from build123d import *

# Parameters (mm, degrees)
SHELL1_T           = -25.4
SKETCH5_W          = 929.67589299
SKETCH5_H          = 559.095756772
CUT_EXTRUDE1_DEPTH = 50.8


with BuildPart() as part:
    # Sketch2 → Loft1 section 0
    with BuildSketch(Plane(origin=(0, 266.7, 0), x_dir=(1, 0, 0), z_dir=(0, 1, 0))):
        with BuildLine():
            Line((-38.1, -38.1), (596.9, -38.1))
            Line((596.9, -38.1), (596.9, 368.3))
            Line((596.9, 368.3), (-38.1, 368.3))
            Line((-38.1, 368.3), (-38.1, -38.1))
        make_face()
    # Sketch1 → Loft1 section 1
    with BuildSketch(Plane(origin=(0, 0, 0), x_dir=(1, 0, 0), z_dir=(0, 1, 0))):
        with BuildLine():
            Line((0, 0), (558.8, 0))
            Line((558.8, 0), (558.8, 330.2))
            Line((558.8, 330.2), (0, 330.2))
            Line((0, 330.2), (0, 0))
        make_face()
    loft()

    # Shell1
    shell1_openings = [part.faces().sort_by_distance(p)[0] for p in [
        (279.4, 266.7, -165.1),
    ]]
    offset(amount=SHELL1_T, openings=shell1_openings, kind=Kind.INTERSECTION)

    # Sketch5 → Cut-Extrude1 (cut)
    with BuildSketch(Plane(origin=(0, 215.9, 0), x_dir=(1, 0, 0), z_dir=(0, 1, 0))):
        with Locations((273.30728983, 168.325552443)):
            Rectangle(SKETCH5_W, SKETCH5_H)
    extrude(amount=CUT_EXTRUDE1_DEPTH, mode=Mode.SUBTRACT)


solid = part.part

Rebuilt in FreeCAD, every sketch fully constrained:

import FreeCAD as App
import Part
import Sketcher
Q = App.Units.Quantity


def faces_at(feature, points):
    """Names of the faces that lie closest to the given points."""
    faces = feature.Shape.Faces
    near = lambda p: min(range(len(faces)), key=lambda i: faces[i].distToShape(Part.Vertex(*p))[0])
    return sorted({f"Face{near(p) + 1}" for p in points})

doc = App.newDocument("Part")
body = doc.addObject("PartDesign::Body", "Body")

sketch1 = doc.addObject("Sketcher::SketchObject", "Sketch")
body.addObject(sketch1)
sketch1.AttachmentSupport = (doc.XZ_Plane, [""])
sketch1.MapMode = "FlatFace"
sketch1.AttachmentOffset = App.Placement(App.Vector(0, 0, -10.5 * 25.4), App.Rotation())
sketch1.addGeometry([
    Part.LineSegment(App.Vector(-38, 38, 0), App.Vector(597, 38, 0)),
    Part.LineSegment(App.Vector(597, 38, 0), App.Vector(597, -368, 0)),
    Part.LineSegment(App.Vector(597, -368, 0), App.Vector(-38, -368, 0)),
    Part.LineSegment(App.Vector(-38, -368, 0), App.Vector(-38, 38, 0)),
], False)
sketch1.addConstraint([
    Sketcher.Constraint("Coincident", 0, 2, 1, 1),
    Sketcher.Constraint("Coincident", 1, 2, 2, 1),
    Sketcher.Constraint("Coincident", 2, 2, 3, 1),
    Sketcher.Constraint("Coincident", 3, 2, 0, 1),
    Sketcher.Constraint("Horizontal", 0),
    Sketcher.Constraint("Vertical", 1),
    Sketcher.Constraint("Horizontal", 2),
    Sketcher.Constraint("Vertical", 3),
    Sketcher.Constraint("DistanceX", 0, 1, 0, 2, Q("25 in")),
    Sketcher.Constraint("DistanceY", 1, 2, 1, 1, Q("16 in")),
    Sketcher.Constraint("DistanceX", -1, 1, 0, 2, Q("23.5 in")),
    Sketcher.Constraint("DistanceY", -1, 1, 0, 2, Q("1.5 in")),
])

sketch2 = doc.addObject("Sketcher::SketchObject", "Sketch001")
body.addObject(sketch2)
sketch2.AttachmentSupport = (doc.XZ_Plane, [""])
sketch2.MapMode = "FlatFace"
sketch2.addGeometry([
    Part.LineSegment(App.Vector(0, 0, 0), App.Vector(559, 0, 0)),
    Part.LineSegment(App.Vector(559, 0, 0), App.Vector(559, -330, 0)),
    Part.LineSegment(App.Vector(559, -330, 0), App.Vector(0, -330, 0)),
    Part.LineSegment(App.Vector(0, -330, 0), App.Vector(0, 0, 0)),
], False)
sketch2.addConstraint([
    Sketcher.Constraint("Coincident", 0, 2, 1, 1),
    Sketcher.Constraint("Coincident", 1, 2, 2, 1),
    Sketcher.Constraint("Coincident", 2, 2, 3, 1),
    Sketcher.Constraint("Coincident", 3, 2, 0, 1),
    Sketcher.Constraint("Horizontal", 0),
    Sketcher.Constraint("Vertical", 1),
    Sketcher.Constraint("Horizontal", 2),
    Sketcher.Constraint("Vertical", 3),
    Sketcher.Constraint("Coincident", 3, 2, -1, 1),
    Sketcher.Constraint("DistanceX", 0, 1, 0, 2, Q("22 in")),
    Sketcher.Constraint("DistanceY", 1, 2, 1, 1, Q("13 in")),
])

additiveloft = doc.addObject("PartDesign::AdditiveLoft", "AdditiveLoft")
body.addObject(additiveloft)
additiveloft.Profile = sketch1
additiveloft.Sections = [sketch2]
doc.recompute()

thickness = doc.addObject("PartDesign::Thickness", "Thickness")
body.addObject(thickness)
thickness.Base = (additiveloft, faces_at(additiveloft, [(279.4, 266.7, -165.1)]))
thickness.Value = Q("1 in")
thickness.Reversed = True
thickness.Join = "Intersection"

sketch3 = doc.addObject("Sketcher::SketchObject", "Sketch002")
body.addObject(sketch3)
sketch3.AttachmentSupport = (doc.XZ_Plane, [""])
sketch3.MapMode = "FlatFace"
sketch3.AttachmentOffset = App.Placement(App.Vector(0, 0, -8.5 * 25.4), App.Rotation())
sketch3.addGeometry([
    Part.LineSegment(App.Vector(-192, -448, 0), App.Vector(-192, 111, 0)),
    Part.LineSegment(App.Vector(-192, 111, 0), App.Vector(738, 111, 0)),
    Part.LineSegment(App.Vector(738, 111, 0), App.Vector(738, -448, 0)),
    Part.LineSegment(App.Vector(738, -448, 0), App.Vector(-192, -448, 0)),
], False)
sketch3.addConstraint([
    Sketcher.Constraint("Coincident", 0, 2, 1, 1),
    Sketcher.Constraint("Coincident", 1, 2, 2, 1),
    Sketcher.Constraint("Coincident", 2, 2, 3, 1),
    Sketcher.Constraint("Coincident", 3, 2, 0, 1),
    Sketcher.Constraint("Vertical", 0),
    Sketcher.Constraint("Horizontal", 1),
    Sketcher.Constraint("Vertical", 2),
    Sketcher.Constraint("Horizontal", 3),
    Sketcher.Constraint("DistanceX", 1, 1, 1, 2, 929.675893),
    Sketcher.Constraint("DistanceY", 0, 1, 0, 2, 559.095757),
    Sketcher.Constraint("DistanceY", 2, 2, -1, 1, 447.873431),
    Sketcher.Constraint("DistanceX", 0, 2, -1, 1, 191.530657),
])
pocket1 = doc.addObject("PartDesign::Pocket", "Pocket")
body.addObject(pocket1)
pocket1.Profile = sketch3
pocket1.Length = Q("2 in")

doc.recompute()
